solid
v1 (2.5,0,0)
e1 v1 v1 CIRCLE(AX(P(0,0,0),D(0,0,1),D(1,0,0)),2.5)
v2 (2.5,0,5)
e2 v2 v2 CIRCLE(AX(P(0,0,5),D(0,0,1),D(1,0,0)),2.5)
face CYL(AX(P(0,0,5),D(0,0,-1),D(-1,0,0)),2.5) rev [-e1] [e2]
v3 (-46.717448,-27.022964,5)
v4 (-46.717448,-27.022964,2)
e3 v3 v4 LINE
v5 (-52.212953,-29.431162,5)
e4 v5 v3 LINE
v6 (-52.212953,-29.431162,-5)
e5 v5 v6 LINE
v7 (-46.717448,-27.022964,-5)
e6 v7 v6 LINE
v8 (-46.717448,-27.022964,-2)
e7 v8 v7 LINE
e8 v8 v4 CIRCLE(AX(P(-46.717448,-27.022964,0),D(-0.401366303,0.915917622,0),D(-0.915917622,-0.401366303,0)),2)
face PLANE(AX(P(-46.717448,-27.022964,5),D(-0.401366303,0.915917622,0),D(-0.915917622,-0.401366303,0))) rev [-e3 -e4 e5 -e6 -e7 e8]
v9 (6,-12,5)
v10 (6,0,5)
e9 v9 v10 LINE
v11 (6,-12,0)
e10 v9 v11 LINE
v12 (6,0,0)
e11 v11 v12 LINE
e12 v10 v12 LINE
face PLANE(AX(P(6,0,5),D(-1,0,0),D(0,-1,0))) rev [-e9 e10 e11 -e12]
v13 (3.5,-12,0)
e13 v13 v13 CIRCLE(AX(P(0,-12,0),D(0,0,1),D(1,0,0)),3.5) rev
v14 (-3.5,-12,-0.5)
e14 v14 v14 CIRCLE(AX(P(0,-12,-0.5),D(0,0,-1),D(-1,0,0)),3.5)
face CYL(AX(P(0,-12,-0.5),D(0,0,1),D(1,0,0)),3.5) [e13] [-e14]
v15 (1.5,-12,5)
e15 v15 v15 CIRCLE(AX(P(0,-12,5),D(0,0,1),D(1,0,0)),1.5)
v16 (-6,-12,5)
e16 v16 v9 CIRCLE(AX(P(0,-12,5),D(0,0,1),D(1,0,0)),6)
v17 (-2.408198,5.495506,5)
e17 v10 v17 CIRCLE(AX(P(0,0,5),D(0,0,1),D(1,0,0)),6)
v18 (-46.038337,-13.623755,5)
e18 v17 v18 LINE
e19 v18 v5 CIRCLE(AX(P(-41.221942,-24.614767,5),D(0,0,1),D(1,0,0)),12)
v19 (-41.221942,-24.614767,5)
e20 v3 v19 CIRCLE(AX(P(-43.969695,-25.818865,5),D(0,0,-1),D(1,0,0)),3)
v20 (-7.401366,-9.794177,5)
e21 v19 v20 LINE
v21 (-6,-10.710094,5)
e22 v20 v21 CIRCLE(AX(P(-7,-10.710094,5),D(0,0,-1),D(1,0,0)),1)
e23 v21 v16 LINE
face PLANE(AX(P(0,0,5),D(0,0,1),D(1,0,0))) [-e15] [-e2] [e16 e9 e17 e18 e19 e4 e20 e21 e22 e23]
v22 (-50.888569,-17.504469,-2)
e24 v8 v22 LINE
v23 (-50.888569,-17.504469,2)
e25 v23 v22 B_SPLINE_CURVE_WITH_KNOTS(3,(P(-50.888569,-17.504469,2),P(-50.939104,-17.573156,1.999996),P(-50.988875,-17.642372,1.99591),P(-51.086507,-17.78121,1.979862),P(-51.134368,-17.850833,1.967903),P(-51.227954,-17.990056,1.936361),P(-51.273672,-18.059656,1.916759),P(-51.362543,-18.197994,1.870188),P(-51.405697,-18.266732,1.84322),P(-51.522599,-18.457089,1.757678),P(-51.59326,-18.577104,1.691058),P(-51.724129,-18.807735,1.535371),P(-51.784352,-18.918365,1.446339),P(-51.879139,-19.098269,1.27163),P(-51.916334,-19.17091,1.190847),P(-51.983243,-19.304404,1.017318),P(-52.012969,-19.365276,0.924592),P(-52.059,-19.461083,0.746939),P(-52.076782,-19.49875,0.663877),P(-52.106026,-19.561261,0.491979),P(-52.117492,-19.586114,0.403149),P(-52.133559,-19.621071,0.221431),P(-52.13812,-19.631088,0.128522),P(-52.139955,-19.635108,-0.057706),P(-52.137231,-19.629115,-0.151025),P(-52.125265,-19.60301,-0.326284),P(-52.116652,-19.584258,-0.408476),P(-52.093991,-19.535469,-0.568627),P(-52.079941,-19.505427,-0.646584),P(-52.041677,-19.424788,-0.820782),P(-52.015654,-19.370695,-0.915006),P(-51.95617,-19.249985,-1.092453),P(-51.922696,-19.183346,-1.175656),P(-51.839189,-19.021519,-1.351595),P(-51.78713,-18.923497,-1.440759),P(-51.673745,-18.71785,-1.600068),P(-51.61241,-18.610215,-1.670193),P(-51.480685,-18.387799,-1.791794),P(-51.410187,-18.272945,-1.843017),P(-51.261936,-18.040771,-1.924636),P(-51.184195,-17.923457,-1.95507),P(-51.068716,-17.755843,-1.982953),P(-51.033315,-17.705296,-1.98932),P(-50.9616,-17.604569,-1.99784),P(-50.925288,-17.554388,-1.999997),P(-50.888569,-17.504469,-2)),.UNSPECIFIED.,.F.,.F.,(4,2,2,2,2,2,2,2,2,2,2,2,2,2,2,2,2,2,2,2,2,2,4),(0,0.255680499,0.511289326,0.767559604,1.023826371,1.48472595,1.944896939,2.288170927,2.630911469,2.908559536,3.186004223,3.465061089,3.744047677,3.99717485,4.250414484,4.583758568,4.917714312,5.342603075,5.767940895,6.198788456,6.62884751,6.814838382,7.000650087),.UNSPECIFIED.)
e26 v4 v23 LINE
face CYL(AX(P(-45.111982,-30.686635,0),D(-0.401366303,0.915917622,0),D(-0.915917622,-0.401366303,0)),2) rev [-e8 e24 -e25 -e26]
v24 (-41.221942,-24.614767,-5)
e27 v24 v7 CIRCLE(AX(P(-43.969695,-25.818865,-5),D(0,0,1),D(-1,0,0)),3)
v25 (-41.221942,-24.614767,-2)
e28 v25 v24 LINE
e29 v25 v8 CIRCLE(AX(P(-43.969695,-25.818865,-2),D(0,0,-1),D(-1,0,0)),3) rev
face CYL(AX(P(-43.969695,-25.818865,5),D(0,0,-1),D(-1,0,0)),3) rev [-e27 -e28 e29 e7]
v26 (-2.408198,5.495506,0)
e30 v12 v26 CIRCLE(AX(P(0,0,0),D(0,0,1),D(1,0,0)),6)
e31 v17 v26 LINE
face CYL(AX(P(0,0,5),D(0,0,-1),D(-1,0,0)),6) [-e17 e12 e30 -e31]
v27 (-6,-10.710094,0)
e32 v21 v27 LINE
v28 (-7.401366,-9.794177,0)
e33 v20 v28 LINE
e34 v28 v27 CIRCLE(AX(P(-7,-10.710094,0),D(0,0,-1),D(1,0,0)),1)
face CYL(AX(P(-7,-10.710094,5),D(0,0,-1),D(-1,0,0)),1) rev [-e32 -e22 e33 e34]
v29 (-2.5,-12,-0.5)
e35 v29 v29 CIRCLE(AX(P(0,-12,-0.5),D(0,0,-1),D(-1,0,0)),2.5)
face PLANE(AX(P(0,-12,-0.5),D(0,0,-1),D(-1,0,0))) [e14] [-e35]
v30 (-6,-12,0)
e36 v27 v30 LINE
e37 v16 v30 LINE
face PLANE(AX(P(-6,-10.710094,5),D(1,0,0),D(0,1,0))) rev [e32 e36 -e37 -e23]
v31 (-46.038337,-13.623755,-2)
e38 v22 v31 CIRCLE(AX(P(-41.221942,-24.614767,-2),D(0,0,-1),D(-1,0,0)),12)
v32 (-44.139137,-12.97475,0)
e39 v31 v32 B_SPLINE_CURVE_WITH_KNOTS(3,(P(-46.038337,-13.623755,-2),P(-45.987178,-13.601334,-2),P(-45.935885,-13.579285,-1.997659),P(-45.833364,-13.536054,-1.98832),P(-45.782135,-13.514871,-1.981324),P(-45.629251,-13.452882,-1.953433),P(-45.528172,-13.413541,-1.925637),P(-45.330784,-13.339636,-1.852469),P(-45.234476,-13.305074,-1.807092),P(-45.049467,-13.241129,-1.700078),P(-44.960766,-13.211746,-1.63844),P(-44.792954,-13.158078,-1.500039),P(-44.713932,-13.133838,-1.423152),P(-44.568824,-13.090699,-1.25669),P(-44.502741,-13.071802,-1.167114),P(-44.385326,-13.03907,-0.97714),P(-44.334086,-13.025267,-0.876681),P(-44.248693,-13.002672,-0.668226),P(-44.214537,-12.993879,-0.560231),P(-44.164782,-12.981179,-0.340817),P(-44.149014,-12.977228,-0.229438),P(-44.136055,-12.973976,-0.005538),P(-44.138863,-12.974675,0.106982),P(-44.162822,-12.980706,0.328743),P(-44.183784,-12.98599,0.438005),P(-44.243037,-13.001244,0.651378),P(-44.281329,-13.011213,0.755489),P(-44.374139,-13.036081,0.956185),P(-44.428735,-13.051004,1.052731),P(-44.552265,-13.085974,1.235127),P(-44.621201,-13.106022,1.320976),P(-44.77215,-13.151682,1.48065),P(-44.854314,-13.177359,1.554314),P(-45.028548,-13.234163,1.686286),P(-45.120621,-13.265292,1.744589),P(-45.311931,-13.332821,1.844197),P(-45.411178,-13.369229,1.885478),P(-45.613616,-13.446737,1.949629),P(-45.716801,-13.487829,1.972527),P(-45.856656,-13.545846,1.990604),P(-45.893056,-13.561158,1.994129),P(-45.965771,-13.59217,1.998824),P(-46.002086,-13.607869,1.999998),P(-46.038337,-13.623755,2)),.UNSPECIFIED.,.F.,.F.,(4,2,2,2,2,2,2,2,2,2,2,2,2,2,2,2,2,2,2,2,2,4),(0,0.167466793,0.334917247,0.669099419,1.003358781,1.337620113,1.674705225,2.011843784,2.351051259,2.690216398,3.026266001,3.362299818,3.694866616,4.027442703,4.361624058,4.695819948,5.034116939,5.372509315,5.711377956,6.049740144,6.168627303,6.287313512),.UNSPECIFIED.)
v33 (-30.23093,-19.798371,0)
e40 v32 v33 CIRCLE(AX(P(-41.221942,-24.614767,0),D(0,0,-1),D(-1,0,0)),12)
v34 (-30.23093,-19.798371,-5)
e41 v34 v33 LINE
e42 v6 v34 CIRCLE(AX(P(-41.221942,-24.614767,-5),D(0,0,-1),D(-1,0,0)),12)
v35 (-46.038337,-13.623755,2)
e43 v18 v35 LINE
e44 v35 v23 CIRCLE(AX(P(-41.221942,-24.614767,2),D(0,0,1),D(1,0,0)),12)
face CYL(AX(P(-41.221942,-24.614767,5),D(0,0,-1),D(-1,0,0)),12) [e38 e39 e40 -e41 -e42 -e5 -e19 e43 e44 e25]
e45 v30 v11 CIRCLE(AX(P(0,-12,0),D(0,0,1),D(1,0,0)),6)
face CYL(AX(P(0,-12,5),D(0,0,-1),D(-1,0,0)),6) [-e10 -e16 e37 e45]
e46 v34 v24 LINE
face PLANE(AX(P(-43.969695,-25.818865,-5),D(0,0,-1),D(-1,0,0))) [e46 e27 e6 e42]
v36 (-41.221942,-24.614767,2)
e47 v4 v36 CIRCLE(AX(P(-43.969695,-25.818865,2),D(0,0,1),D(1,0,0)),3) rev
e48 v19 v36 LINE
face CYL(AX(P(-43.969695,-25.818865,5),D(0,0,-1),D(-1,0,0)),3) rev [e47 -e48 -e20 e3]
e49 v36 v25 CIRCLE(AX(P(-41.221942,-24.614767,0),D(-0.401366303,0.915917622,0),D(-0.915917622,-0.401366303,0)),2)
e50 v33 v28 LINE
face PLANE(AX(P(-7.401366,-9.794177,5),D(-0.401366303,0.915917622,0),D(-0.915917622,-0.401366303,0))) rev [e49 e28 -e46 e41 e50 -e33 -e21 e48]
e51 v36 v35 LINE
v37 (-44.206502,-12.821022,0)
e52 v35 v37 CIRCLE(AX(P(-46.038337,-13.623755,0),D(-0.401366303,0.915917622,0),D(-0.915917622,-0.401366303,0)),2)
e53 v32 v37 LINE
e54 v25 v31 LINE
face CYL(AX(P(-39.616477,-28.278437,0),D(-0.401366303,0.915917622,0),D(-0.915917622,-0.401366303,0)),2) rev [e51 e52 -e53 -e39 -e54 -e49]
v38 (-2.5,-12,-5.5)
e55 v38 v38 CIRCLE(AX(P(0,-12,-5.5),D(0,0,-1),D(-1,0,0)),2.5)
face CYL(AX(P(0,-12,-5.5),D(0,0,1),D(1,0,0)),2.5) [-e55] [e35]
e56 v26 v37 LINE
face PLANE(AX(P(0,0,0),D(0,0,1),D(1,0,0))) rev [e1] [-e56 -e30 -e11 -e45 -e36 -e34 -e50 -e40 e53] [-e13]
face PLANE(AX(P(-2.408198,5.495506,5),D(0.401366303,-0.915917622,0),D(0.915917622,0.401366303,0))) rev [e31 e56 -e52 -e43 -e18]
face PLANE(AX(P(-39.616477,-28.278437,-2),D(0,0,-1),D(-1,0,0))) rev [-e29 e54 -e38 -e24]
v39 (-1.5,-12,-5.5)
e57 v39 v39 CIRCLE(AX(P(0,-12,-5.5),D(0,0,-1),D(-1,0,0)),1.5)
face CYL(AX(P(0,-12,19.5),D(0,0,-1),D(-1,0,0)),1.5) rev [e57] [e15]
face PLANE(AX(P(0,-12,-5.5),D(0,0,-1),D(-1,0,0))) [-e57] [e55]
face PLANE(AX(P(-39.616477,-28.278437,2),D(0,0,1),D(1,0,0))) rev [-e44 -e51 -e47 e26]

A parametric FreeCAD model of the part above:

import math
import FreeCAD as App
import Part
import Sketcher
from FreeCAD import Vector

doc = App.newDocument("Part")
body = doc.addObject("PartDesign::Body", "Body")

sketch1 = doc.addObject("Sketcher::SketchObject", "Sketch")
body.addObject(sketch1)
sketch1.AttachmentSupport = (doc.XY_Plane, [""])
sketch1.MapMode = "FlatFace"
sketch1.addGeometry(Part.LineSegment(Vector(6, -12, 0), Vector(6, 0, 0)), False)
sketch1.addGeometry(Part.ArcOfCircle(Part.Circle(Vector(0, 0, 0), Vector(0, 0, 1), 6), math.radians(0), math.radians(114)), False)
sketch1.addGeometry(Part.LineSegment(Vector(-2.4, 5.5, 0), Vector(-46, -13.6, 0)), False)
sketch1.addGeometry(Part.ArcOfCircle(Part.Circle(Vector(-41.2, -24.6, 0), Vector(0, 0, 1), 12), math.radians(114), math.radians(204)), False)
sketch1.addGeometry(Part.LineSegment(Vector(-52.2, -29.4, 0), Vector(-46.7, -27, 0)), False)
sketch1.addGeometry(Part.ArcOfCircle(Part.Circle(Vector(-44, -25.8, 0), Vector(0, 0, 1), 3), math.radians(24), math.radians(204)), False)
sketch1.addGeometry(Part.LineSegment(Vector(-41.2, -24.6, 0), Vector(-7.4, -9.8, 0)), False)
sketch1.addGeometry(Part.ArcOfCircle(Part.Circle(Vector(-7, -10.7, 0), Vector(0, 0, 1), 1), math.radians(0), math.radians(114)), False)
sketch1.addGeometry(Part.LineSegment(Vector(-6, -10.7, 0), Vector(-6, -12, 0)), False)
sketch1.addGeometry(Part.ArcOfCircle(Part.Circle(Vector(0, -12, 0), Vector(0, 0, 1), 6), math.radians(180), math.radians(360)), False)
sketch1.addGeometry(Part.Circle(Vector(0, 0, 0), Vector(0, 0, 1), 2.5), False)
sketch1.addConstraint(Sketcher.Constraint("Tangent", 0, 2, 1, 1))
sketch1.addConstraint(Sketcher.Constraint("Tangent", 1, 2, 2, 1))
sketch1.addConstraint(Sketcher.Constraint("Tangent", 2, 2, 3, 1))
sketch1.addConstraint(Sketcher.Constraint("Coincident", 3, 2, 4, 1))
sketch1.addConstraint(Sketcher.Constraint("Coincident", 4, 2, 5, 2))
sketch1.addConstraint(Sketcher.Constraint("Coincident", 5, 1, 6, 1))
sketch1.addConstraint(Sketcher.Constraint("Tangent", 6, 2, 7, 2))
sketch1.addConstraint(Sketcher.Constraint("Tangent", 7, 1, 8, 1))
sketch1.addConstraint(Sketcher.Constraint("Tangent", 8, 2, 9, 1))
sketch1.addConstraint(Sketcher.Constraint("Tangent", 9, 2, 0, 1))
sketch1.addConstraint(Sketcher.Constraint("Vertical", 0))
sketch1.addConstraint(Sketcher.Constraint("Vertical", 8))
sketch1.addConstraint(Sketcher.Constraint("Coincident", 1, 3, -1, 1))
sketch1.addConstraint(Sketcher.Constraint("Coincident", 10, 3, -1, 1))
sketch1.addConstraint(Sketcher.Constraint("Coincident", 5, 1, 3, 3))
sketch1.addConstraint(Sketcher.Constraint("Equal", 1, 9))
sketch1.addConstraint(Sketcher.Constraint("Parallel", 2, 4))
sketch1.addConstraint(Sketcher.Constraint("Parallel", 4, 6))
sketch1.addConstraint(Sketcher.Constraint("Diameter", 10, 5.0))
sketch1.addConstraint(Sketcher.Constraint("Radius", 1, 6.0))
sketch1.addConstraint(Sketcher.Constraint("Radius", 3, 12.0))
sketch1.addConstraint(Sketcher.Constraint("Radius", 5, 3.0))
sketch1.addConstraint(Sketcher.Constraint("Radius", 7, 1.0))
sketch1.addConstraint(Sketcher.Constraint("DistanceY", 0, 1, 0, 2, 12.0))
sketch1.addConstraint(Sketcher.Constraint("DistanceY", 5, 3, 3, 3, 1.204099))
sketch1.addConstraint(Sketcher.Constraint("DistanceY", 7, 3, 1, 2, 16.2056))
sketch1.addConstraint(Sketcher.Constraint("DistanceY", 4, 2, 5, 3, 1.204099))
sketch1.addConstraint(Sketcher.Constraint("Distance", 2, 47.635441))
pad1 = doc.addObject("PartDesign::Pad", "Pad")
body.addObject(pad1)
pad1.Profile = sketch1
pad1.Length = 5

sketch2 = doc.addObject("Sketcher::SketchObject", "Sketch001")
body.addObject(sketch2)
sketch2.AttachmentSupport = (doc.XY_Plane, [""])
sketch2.MapMode = "FlatFace"
sketch2.addGeometry(Part.Circle(Vector(0, -12, 0), Vector(0, 0, 1), 2.5), False)
sketch2.addConstraint(Sketcher.Constraint("PointOnObject", 0, 3, -2))
sketch2.addConstraint(Sketcher.Constraint("Diameter", 0, 5.0))
sketch2.addConstraint(Sketcher.Constraint("DistanceY", 0, 3, -1, 1, 12.0))
pad2 = doc.addObject("PartDesign::Pad", "Pad001")
body.addObject(pad2)
pad2.Profile = sketch2
pad2.Length = 5.5
pad2.Reversed = True

sketch3 = doc.addObject("Sketcher::SketchObject", "Sketch002")
body.addObject(sketch3)
sketch3.AttachmentSupport = (doc.XY_Plane, [""])
sketch3.MapMode = "FlatFace"
sketch3.AttachmentOffset = App.Placement(Vector(0, 0, -5.5), App.Rotation())
sketch3.addGeometry(Part.Circle(Vector(0, -12, 0), Vector(0, 0, 1), 1.5), False)
sketch3.addConstraint(Sketcher.Constraint("PointOnObject", 0, 3, -2))
sketch3.addConstraint(Sketcher.Constraint("Diameter", 0, 3.0))
sketch3.addConstraint(Sketcher.Constraint("DistanceY", 0, 3, -1, 1, 12.0))
pocket1 = doc.addObject("PartDesign::Pocket", "Pocket")
body.addObject(pocket1)
pocket1.Profile = sketch3
pocket1.Length = 25
pocket1.Reversed = True

sketch4 = doc.addObject("Sketcher::SketchObject", "Sketch003")
body.addObject(sketch4)
sketch4.AttachmentSupport = (doc.XY_Plane, [""])
sketch4.MapMode = "FlatFace"
sketch4.AttachmentOffset = App.Placement(Vector(0, 0, -5), App.Rotation())
sketch4.addGeometry(Part.LineSegment(Vector(-46.7, -27, 0), Vector(-52.2, -29.4, 0)), False)
sketch4.addGeometry(Part.ArcOfCircle(Part.Circle(Vector(-41.2, -24.6, 0), Vector(0, 0, 1), 12), math.radians(24), math.radians(204)), False)
sketch4.addGeometry(Part.LineSegment(Vector(-30.2, -19.8, 0), Vector(-41.2, -24.6, 0)), False)
sketch4.addGeometry(Part.ArcOfCircle(Part.Circle(Vector(-44, -25.8, 0), Vector(0, 0, 1), 3), math.radians(24), math.radians(204)), False)
sketch4.addConstraint(Sketcher.Constraint("Coincident", 0, 2, 1, 2))
sketch4.addConstraint(Sketcher.Constraint("Coincident", 1, 1, 2, 1))
sketch4.addConstraint(Sketcher.Constraint("Coincident", 2, 2, 3, 1))
sketch4.addConstraint(Sketcher.Constraint("Coincident", 3, 2, 0, 1))
sketch4.addConstraint(Sketcher.Constraint("Coincident", 2, 2, 1, 3))
sketch4.addConstraint(Sketcher.Constraint("Parallel", 0, 2))
sketch4.addConstraint(Sketcher.Constraint("Radius", 1, 12.0))
sketch4.addConstraint(Sketcher.Constraint("Radius", 3, 3.0))
sketch4.addConstraint(Sketcher.Constraint("DistanceY", 3, 3, 1, 3, 1.204099))
sketch4.addConstraint(Sketcher.Constraint("DistanceY", 3, 2, 3, 3, 1.204099))
sketch4.addConstraint(Sketcher.Constraint("DistanceX", 1, 3, -1, 1, 41.221942))
sketch4.addConstraint(Sketcher.Constraint("DistanceX", 1, 1, -1, 1, 30.23093))
sketch4.addConstraint(Sketcher.Constraint("DistanceY", 1, 1, -1, 1, 19.798371))
pad3 = doc.addObject("PartDesign::Pad", "Pad002")
body.addObject(pad3)
pad3.Profile = sketch4
pad3.Length = 5

sketch5 = doc.addObject("Sketcher::SketchObject", "Sketch004")
body.addObject(sketch5)
sketch5.Placement = App.Placement(Vector(-2.408198, 5.495506, 0), App.Rotation(Vector(-0.915917622, -0.401366303, 0), Vector(0, 0, 0.999999999), Vector(-0.401366303, 0.915917622, 0), "ZXY"))
sketch5.addGeometry(Part.LineSegment(Vector(53.6, 2, 0), Vector(47.6, 2, 0)), False)
sketch5.addGeometry(Part.ArcOfCircle(Part.Circle(Vector(47.6, 0, 0), Vector(0, 0, 1), 2), math.radians(90), math.radians(270)), False)
sketch5.addGeometry(Part.LineSegment(Vector(47.6, -2, 0), Vector(53.6, -2, 0)), False)
sketch5.addGeometry(Part.ArcOfCircle(Part.Circle(Vector(53.6, 0, 0), Vector(0, 0, 1), 2), math.radians(-90), math.radians(90)), False)
sketch5.addConstraint(Sketcher.Constraint("Tangent", 0, 2, 1, 1))
sketch5.addConstraint(Sketcher.Constraint("Tangent", 1, 2, 2, 1))
sketch5.addConstraint(Sketcher.Constraint("Tangent", 2, 2, 3, 1))
sketch5.addConstraint(Sketcher.Constraint("Tangent", 3, 2, 0, 1))
sketch5.addConstraint(Sketcher.Constraint("Horizontal", 0))
sketch5.addConstraint(Sketcher.Constraint("Horizontal", 2))
sketch5.addConstraint(Sketcher.Constraint("PointOnObject", 1, 3, -1))
sketch5.addConstraint(Sketcher.Constraint("Radius", 1, 2.0))
sketch5.addConstraint(Sketcher.Constraint("DistanceX", 0, 2, 0, 1, 6.0))
sketch5.addConstraint(Sketcher.Constraint("DistanceX", -1, 1, 1, 3, 47.635441))
pocket2 = doc.addObject("PartDesign::Pocket", "Pocket001")
body.addObject(pocket2)
pocket2.Profile = sketch5
pocket2.Length = 16

sketch6 = doc.addObject("Sketcher::SketchObject", "Sketch005")
body.addObject(sketch6)
sketch6.AttachmentSupport = (doc.XY_Plane, [""])
sketch6.MapMode = "FlatFace"
sketch6.addGeometry(Part.Circle(Vector(0, -12, 0), Vector(0, 0, 1), 3.5), False)
sketch6.addGeometry(Part.Circle(Vector(0, -12, 0), Vector(0, 0, 1), 2.5), False)
sketch6.addConstraint(Sketcher.Constraint("Coincident", 1, 3, 0, 3))
sketch6.addConstraint(Sketcher.Constraint("PointOnObject", 0, 3, -2))
sketch6.addConstraint(Sketcher.Constraint("Diameter", 0, 7.0))
sketch6.addConstraint(Sketcher.Constraint("Diameter", 1, 5.0))
sketch6.addConstraint(Sketcher.Constraint("DistanceY", 0, 3, -1, 1, 12.0))
pad4 = doc.addObject("PartDesign::Pad", "Pad003")
body.addObject(pad4)
pad4.Profile = sketch6
pad4.Length = 0.5
pad4.Reversed = True

doc.recompute()
